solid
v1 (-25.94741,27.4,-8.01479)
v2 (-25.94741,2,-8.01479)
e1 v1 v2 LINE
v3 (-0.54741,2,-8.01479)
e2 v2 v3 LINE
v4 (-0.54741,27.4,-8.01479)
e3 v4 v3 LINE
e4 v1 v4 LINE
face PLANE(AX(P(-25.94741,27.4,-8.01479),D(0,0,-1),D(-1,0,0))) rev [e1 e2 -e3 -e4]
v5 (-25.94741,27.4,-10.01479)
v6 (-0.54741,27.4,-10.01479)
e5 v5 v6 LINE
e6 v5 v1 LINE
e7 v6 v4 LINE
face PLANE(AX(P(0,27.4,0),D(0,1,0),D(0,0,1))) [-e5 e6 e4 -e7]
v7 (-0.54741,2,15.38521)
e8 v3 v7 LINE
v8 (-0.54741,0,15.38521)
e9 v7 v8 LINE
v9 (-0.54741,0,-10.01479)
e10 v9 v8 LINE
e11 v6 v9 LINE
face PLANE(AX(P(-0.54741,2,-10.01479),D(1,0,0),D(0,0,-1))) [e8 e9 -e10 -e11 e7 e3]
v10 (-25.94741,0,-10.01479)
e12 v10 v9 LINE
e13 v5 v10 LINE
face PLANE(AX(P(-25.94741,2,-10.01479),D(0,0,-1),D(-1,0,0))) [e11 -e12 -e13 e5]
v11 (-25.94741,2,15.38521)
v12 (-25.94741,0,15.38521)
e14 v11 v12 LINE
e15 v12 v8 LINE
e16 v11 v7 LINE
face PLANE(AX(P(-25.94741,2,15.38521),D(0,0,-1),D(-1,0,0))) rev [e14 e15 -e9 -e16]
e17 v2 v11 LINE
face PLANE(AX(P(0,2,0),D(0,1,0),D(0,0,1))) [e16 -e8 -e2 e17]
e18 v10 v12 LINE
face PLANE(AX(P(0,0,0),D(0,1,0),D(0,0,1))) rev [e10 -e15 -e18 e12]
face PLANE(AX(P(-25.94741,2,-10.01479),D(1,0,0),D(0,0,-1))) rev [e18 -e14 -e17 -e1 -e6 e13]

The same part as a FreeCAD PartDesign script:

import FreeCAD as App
import Part
import Sketcher
from FreeCAD import Vector
Q = App.Units.Quantity


def add_polygon(sketch, points):
    """Adds a closed chain of lines whose ends are joined by coincident constraints."""
    first, n = sketch.GeometryCount, len(points)
    for a, b in zip(points, points[1:] + points[:1]):
        sketch.addGeometry(Part.LineSegment(App.Vector(*a, 0), App.Vector(*b, 0)), False)
    for i in range(n):
        sketch.addConstraint(Sketcher.Constraint("Coincident", first + i, 2, first + (i + 1) % n, 1))

doc = App.newDocument("Part")
params = doc.addObject("Spreadsheet::Sheet", "Params")
for row, (alias, value) in enumerate([
    ("sketch1_width", "25.4 mm"),
    ("pad1_length", "2 mm"),
    ("sketch2_width", "2 mm"),
    ("sketch2_height", "25.4 mm"),
    ("pad2_length", "2 mm"),
    ("sketch3_height", "2 mm"),
    ("sketch3_width", "25.4 mm"),
    ("pad3_length", "25.4 mm"),
], start=1):
    params.set(f"A{row}", alias)
    params.set(f"B{row}", "=" + value)
    params.setAlias(f"B{row}", alias)

body = doc.addObject("PartDesign::Body", "Body")

sketch1 = body.newObject("Sketcher::SketchObject", "Sketch")
sketch1.AttachmentSupport = (doc.getObject("XZ_Plane"), [""])
sketch1.MapMode = "FlatFace"
add_polygon(sketch1, [(-25.94741, -10.01479), (-25.94741, 15.38521), (-0.54741, 15.38521), (-0.54741, -10.01479)])
sketch1.addConstraint([
    Sketcher.Constraint("Vertical", 0),
    Sketcher.Constraint("Horizontal", 1),
    Sketcher.Constraint("Vertical", 2),
    Sketcher.Constraint("Horizontal", 3),
    Sketcher.Constraint("Equal", 3, 0),
    Sketcher.Constraint("DistanceX", 1, 1, 1, 2, Q("25.4 mm")),
    Sketcher.Constraint("DistanceX", 0, 2, -1, 1, Q("25.94741 mm")),
    Sketcher.Constraint("DistanceY", -1, 1, 0, 2, Q("15.38521 mm")),
])
sketch1.setExpression("Constraints[9]", "Params.sketch1_width")
pad1 = body.newObject("PartDesign::Pad", "Pad")
pad1.Profile = sketch1
pad1.setExpression("Length", "Params.pad1_length")
pad1.Reversed = True

sketch2 = body.newObject("Sketcher::SketchObject", "Sketch001")
sketch2.AttachmentSupport = (doc.getObject("YZ_Plane"), [""])
sketch2.MapMode = "FlatFace"
sketch2.AttachmentOffset = App.Placement(Vector(0, 0, -25.94741), App.Rotation())
add_polygon(sketch2, [(2, 15.38521), (0, 15.38521), (0, -10.01479), (2, -10.01479)])
sketch2.addConstraint([
    Sketcher.Constraint("Horizontal", 0),
    Sketcher.Constraint("Vertical", 1),
    Sketcher.Constraint("Horizontal", 2),
    Sketcher.Constraint("Vertical", 3),
    Sketcher.Constraint("PointOnObject", 0, 2, -2),
    Sketcher.Constraint("DistanceX", 0, 2, 0, 1, Q("2 mm")),
    Sketcher.Constraint("DistanceY", 1, 2, 1, 1, Q("25.4 mm")),
    Sketcher.Constraint("DistanceY", -1, 1, 0, 2, Q("15.38521 mm")),
])
sketch2.setExpression("Constraints[9]", "Params.sketch2_width")
sketch2.setExpression("Constraints[10]", "Params.sketch2_height")
pad2 = body.newObject("PartDesign::Pad", "Pad001")
pad2.Profile = sketch2
pad2.setExpression("Length", "Params.pad2_length")

sketch3 = body.newObject("Sketcher::SketchObject", "Sketch002")
sketch3.AttachmentSupport = (doc.getObject("XZ_Plane"), [""])
sketch3.MapMode = "FlatFace"
sketch3.AttachmentOffset = App.Placement(Vector(0, 0, -2), App.Rotation())
add_polygon(sketch3, [(-25.94741, -10.01479), (-25.94741, -8.01479), (-0.54741, -8.01479), (-0.54741, -10.01479)])
sketch3.addConstraint([
    Sketcher.Constraint("Vertical", 0),
    Sketcher.Constraint("Horizontal", 1),
    Sketcher.Constraint("Vertical", 2),
    Sketcher.Constraint("Horizontal", 3),
    Sketcher.Constraint("DistanceY", 0, 1, 0, 2, Q("2 mm")),
    Sketcher.Constraint("DistanceX", 1, 1, 1, 2, Q("25.4 mm")),
    Sketcher.Constraint("DistanceX", 0, 2, -1, 1, Q("25.94741 mm")),
    Sketcher.Constraint("DistanceY", 0, 2, -1, 1, Q("8.01479 mm")),
])
sketch3.setExpression("Constraints[8]", "Params.sketch3_height")
sketch3.setExpression("Constraints[9]", "Params.sketch3_width")
pad3 = body.newObject("PartDesign::Pad", "Pad002")
pad3.Profile = sketch3
pad3.setExpression("Length", "Params.pad3_length")
pad3.Reversed = True

doc.recompute()
